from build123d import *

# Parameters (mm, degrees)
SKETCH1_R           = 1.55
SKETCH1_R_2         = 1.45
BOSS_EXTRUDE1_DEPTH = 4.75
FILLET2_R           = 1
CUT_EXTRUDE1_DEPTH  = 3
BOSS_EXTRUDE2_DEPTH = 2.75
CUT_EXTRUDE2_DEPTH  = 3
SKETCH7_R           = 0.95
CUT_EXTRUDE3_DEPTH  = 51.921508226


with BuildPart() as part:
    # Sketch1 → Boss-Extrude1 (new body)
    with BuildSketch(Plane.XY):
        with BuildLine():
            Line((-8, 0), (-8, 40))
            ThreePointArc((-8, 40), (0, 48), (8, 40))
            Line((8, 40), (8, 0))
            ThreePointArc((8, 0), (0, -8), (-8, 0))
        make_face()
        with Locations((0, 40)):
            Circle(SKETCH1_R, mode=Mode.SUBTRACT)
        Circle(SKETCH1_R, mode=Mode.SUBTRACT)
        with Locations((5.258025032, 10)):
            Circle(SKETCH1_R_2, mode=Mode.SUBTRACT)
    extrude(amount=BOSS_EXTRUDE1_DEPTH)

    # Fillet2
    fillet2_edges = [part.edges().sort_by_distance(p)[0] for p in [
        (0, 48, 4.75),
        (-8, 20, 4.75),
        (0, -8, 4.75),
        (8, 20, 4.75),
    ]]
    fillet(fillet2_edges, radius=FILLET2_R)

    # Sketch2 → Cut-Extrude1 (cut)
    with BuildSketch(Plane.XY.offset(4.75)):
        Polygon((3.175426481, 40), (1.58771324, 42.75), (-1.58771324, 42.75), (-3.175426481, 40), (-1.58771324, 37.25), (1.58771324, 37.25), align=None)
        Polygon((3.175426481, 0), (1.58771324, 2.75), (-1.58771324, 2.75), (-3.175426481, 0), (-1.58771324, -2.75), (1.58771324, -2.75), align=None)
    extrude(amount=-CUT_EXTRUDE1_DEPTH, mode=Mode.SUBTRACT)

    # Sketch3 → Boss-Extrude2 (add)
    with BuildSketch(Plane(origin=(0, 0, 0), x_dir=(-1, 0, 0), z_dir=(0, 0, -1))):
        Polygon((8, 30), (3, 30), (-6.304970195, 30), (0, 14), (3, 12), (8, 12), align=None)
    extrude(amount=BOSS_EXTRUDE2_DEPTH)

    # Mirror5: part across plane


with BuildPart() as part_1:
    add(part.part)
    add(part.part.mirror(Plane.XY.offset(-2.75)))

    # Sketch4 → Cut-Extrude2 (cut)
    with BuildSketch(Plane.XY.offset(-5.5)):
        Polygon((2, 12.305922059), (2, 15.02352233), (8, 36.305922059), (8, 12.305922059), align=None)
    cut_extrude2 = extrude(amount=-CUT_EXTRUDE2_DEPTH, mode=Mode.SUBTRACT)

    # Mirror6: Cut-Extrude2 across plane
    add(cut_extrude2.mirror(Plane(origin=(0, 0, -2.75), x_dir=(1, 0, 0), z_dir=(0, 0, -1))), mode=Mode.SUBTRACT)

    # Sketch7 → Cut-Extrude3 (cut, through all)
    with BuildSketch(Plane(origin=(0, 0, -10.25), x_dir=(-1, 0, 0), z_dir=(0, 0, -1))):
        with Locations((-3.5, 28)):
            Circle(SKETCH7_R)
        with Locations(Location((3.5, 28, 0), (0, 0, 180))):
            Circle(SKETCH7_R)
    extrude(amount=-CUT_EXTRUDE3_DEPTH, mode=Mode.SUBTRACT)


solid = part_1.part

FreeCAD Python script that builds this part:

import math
import FreeCAD as App
import Part
import Sketcher
Q = App.Units.Quantity


def edges_at(feature, points):
    """Names of the edges that pass closest to the given points."""
    edges = feature.Shape.Edges
    near = lambda p: min(range(len(edges)), key=lambda i: edges[i].distToShape(Part.Vertex(*p))[0])
    return sorted({f"Edge{near(p) + 1}" for p in points})

doc = App.newDocument("Part")
body = doc.addObject("PartDesign::Body", "Body")

# Sketch on XY plane
sketch1 = body.newObject("Sketcher::SketchObject", "Sketch")
sketch1.AttachmentSupport = (doc.getObject("XY_Plane"), [""])
sketch1.MapMode = "FlatFace"
sketch1.addGeometry([
    Part.LineSegment(App.Vector(-8, 40, 0), App.Vector(-8, 0, 0)),  # 0
    Part.ArcOfCircle(Part.Circle(App.Vector(0, 0, 0), App.Vector(0, 0, 1), 8), math.radians(180), math.radians(360)),  # 1
    Part.LineSegment(App.Vector(8, 0, 0), App.Vector(8, 40, 0)),  # 2
    Part.ArcOfCircle(Part.Circle(App.Vector(0, 40, 0), App.Vector(0, 0, 1), 8), math.radians(0), math.radians(180)),  # 3
    Part.Circle(App.Vector(5.3, 10, 0), App.Vector(0, 0, 1), 1.4),  # 4
    Part.Circle(App.Vector(0, 0, 0), App.Vector(0, 0, 1), 1.6),  # 5
    Part.Circle(App.Vector(0, 40, 0), App.Vector(0, 0, 1), 1.6),  # 6
], False)
sketch1.addConstraint([
    Sketcher.Constraint("Tangent", 0, 2, 1, 1),
    Sketcher.Constraint("Tangent", 1, 2, 2, 1),
    Sketcher.Constraint("Tangent", 2, 2, 3, 1),
    Sketcher.Constraint("Tangent", 3, 2, 0, 1),
    Sketcher.Constraint("Vertical", 0),
    Sketcher.Constraint("Vertical", 2),
    Sketcher.Constraint("Coincident", 1, 3, -1, 1),
    Sketcher.Constraint("Coincident", 5, 3, -1, 1),
    Sketcher.Constraint("Coincident", 6, 3, 3, 3),
    Sketcher.Constraint("Equal", 5, 6),
    Sketcher.Constraint("Radius", 1, Q("8 mm")),
    Sketcher.Constraint("Diameter", 4, Q("2.9 mm")),
    Sketcher.Constraint("Diameter", 5, Q("3.1 mm")),
    Sketcher.Constraint("DistanceY", 0, 2, 0, 1, Q("40 mm")),
    Sketcher.Constraint("DistanceY", -1, 1, 4, 3, Q("10 mm")),
    Sketcher.Constraint("DistanceX", -1, 1, 4, 3, Q("5.258025 mm")),
])
pad1 = body.newObject("PartDesign::Pad", "Pad")
pad1.Profile = sketch1
pad1.Length = 4.75
doc.recompute()

fillet = body.newObject("PartDesign::Fillet", "Fillet")
fillet.Base = (pad1, edges_at(pad1, [
    (0, 48, 4.75),
    (-8, 20, 4.75),
    (0, -8, 4.75),
    (8, 20, 4.75),
]))
fillet.Radius = 1

# Sketch on XY plane
sketch2 = body.newObject("Sketcher::SketchObject", "Sketch001")
sketch2.AttachmentSupport = (doc.getObject("XY_Plane"), [""])
sketch2.MapMode = "FlatFace"
sketch2.AttachmentOffset = App.Placement(App.Vector(0, 0, 4.75), App.Rotation())
sketch2.addGeometry([
    Part.LineSegment(App.Vector(3.2, 40, 0), App.Vector(1.6, 42.8, 0)),  # 0
    Part.LineSegment(App.Vector(1.6, 42.8, 0), App.Vector(-1.6, 42.8, 0)),  # 1
    Part.LineSegment(App.Vector(-1.6, 42.8, 0), App.Vector(-3.2, 40, 0)),  # 2
    Part.LineSegment(App.Vector(-3.2, 40, 0), App.Vector(-1.6, 37.2, 0)),  # 3
    Part.LineSegment(App.Vector(-1.6, 37.2, 0), App.Vector(1.6, 37.2, 0)),  # 4
    Part.LineSegment(App.Vector(1.6, 37.2, 0), App.Vector(3.2, 40, 0)),  # 5
    Part.LineSegment(App.Vector(3.2, 0, 0), App.Vector(1.6, 2.8, 0)),  # 6
    Part.LineSegment(App.Vector(1.6, 2.8, 0), App.Vector(-1.6, 2.8, 0)),  # 7
    Part.LineSegment(App.Vector(-1.6, 2.8, 0), App.Vector(-3.2, 0, 0)),  # 8
    Part.LineSegment(App.Vector(-3.2, 0, 0), App.Vector(-1.6, -2.8, 0)),  # 9
    Part.LineSegment(App.Vector(-1.6, -2.8, 0), App.Vector(1.6, -2.8, 0)),  # 10
    Part.LineSegment(App.Vector(1.6, -2.8, 0), App.Vector(3.2, 0, 0)),  # 11
], False)
sketch2.addConstraint([
    Sketcher.Constraint("Coincident", 0, 2, 1, 1),
    Sketcher.Constraint("Coincident", 1, 2, 2, 1),
    Sketcher.Constraint("Coincident", 2, 2, 3, 1),
    Sketcher.Constraint("Coincident", 3, 2, 4, 1),
    Sketcher.Constraint("Coincident", 4, 2, 5, 1),
    Sketcher.Constraint("Coincident", 5, 2, 0, 1),
    Sketcher.Constraint("Coincident", 6, 2, 7, 1),
    Sketcher.Constraint("Coincident", 7, 2, 8, 1),
    Sketcher.Constraint("Coincident", 8, 2, 9, 1),
    Sketcher.Constraint("Coincident", 9, 2, 10, 1),
    Sketcher.Constraint("Coincident", 10, 2, 11, 1),
    Sketcher.Constraint("Coincident", 11, 2, 6, 1),
    Sketcher.Constraint("Horizontal", 1),
    Sketcher.Constraint("Horizontal", 4),
    Sketcher.Constraint("Horizontal", 7),
    Sketcher.Constraint("Horizontal", 10),
    Sketcher.Constraint("Symmetric", 6, 2, 9, 2, -1, 1),
    Sketcher.Constraint("Symmetric", 8, 2, 11, 2, -1, 1),
    Sketcher.Constraint("Symmetric", 2, 2, 5, 2, -2),
    Sketcher.Constraint("PointOnObject", 8, 2, -1),
    Sketcher.Constraint("Parallel", 0, 3),
    Sketcher.Constraint("Parallel", 2, 5),
    Sketcher.Constraint("Parallel", 3, 6),
    Sketcher.Constraint("Parallel", 5, 8),
    Sketcher.Constraint("Parallel", 8, 11),
    Sketcher.Constraint("Vertical", 1, 2, 3, 2),
    Sketcher.Constraint("Vertical", 0, 2, 4, 2),
    Sketcher.Constraint("Vertical", 4, 2, 6, 2),
    Sketcher.Constraint("Vertical", 2, 2, 8, 2),
    Sketcher.Constraint("Angle", 0, Q("120 deg")),
    Sketcher.Constraint("DistanceY", -1, 1, 2, 2, Q("40 mm")),
    Sketcher.Constraint("DistanceY", 3, 2, 1, 2, Q("5.5 mm")),
    Sketcher.Constraint("DistanceX", 1, 2, 1, 1, Q("3.175426 mm")),
])
pocket1 = body.newObject("PartDesign::Pocket", "Pocket")
pocket1.Profile = sketch2
pocket1.Length = 3

# Sketch on XY plane
sketch3 = body.newObject("Sketcher::SketchObject", "Sketch002")
sketch3.AttachmentSupport = (doc.getObject("XY_Plane"), [""])
sketch3.MapMode = "FlatFace"
sketch3.addGeometry([
    Part.LineSegment(App.Vector(-8, 30, 0), App.Vector(6.3, 30, 0)),  # 0
    Part.LineSegment(App.Vector(6.3, 30, 0), App.Vector(0, 14, 0)),  # 1
    Part.LineSegment(App.Vector(0, 14, 0), App.Vector(-3, 12, 0)),  # 2
    Part.LineSegment(App.Vector(-3, 12, 0), App.Vector(-8, 12, 0)),  # 3
    Part.LineSegment(App.Vector(-8, 12, 0), App.Vector(-8, 30, 0)),  # 4
], False)
sketch3.addConstraint([
    Sketcher.Constraint("Coincident", 0, 2, 1, 1),
    Sketcher.Constraint("Coincident", 1, 2, 2, 1),
    Sketcher.Constraint("Coincident", 2, 2, 3, 1),
    Sketcher.Constraint("Coincident", 3, 2, 4, 1),
    Sketcher.Constraint("Coincident", 4, 2, 0, 1),
    Sketcher.Constraint("Horizontal", 0),
    Sketcher.Constraint("Horizontal", 3),
    Sketcher.Constraint("Vertical", 4),
    Sketcher.Constraint("PointOnObject", 1, 2, -2),
    Sketcher.Constraint("DistanceX", 3, 2, 3, 1, Q("5 mm")),
    Sketcher.Constraint("DistanceY", 4, 1, 4, 2, Q("18 mm")),
    Sketcher.Constraint("DistanceY", -1, 1, 0, 2, Q("30 mm")),
    Sketcher.Constraint("DistanceY", -1, 1, 1, 2, Q("14 mm")),
    Sketcher.Constraint("DistanceX", 2, 2, -1, 1, Q("3 mm")),
    Sketcher.Constraint("DistanceX", 0, 1, 0, 2, Q("14.30497 mm")),
])
pad2 = body.newObject("PartDesign::Pad", "Pad001")
pad2.Profile = sketch3
pad2.Length = 2.75
pad2.Reversed = True
body2 = doc.addObject("PartDesign::Body", "Body001")
doc.recompute()

body2.BaseFeature = body
doc.recompute()

mirroring = doc.addObject("Part::Mirroring", "Mirroring")
mirroring.Source = body
mirroring.Base = App.Vector(0, 0, -2.75)
mirroring.Normal = App.Vector(0, 0, 1)
body3 = doc.addObject("PartDesign::Body", "Body002")
body3.BaseFeature = mirroring
boolean = body2.newObject("PartDesign::Boolean", "Boolean")
boolean.Type = "Fuse"
boolean.addObjects([body3])
doc.recompute()

# Sketch on XY plane
sketch4 = body2.newObject("Sketcher::SketchObject", "Sketch003")
sketch4.AttachmentSupport = (doc.getObject("XY_Plane001"), [""])
sketch4.MapMode = "FlatFace"
sketch4.AttachmentOffset = App.Placement(App.Vector(0, 0, -5.5), App.Rotation())
sketch4.addGeometry([
    Part.LineSegment(App.Vector(2, 15, 0), App.Vector(2, 12.3, 0)),
    Part.LineSegment(App.Vector(2, 12.3, 0), App.Vector(8, 12.3, 0)),
    Part.LineSegment(App.Vector(8, 12.3, 0), App.Vector(8, 36.3, 0)),
    Part.LineSegment(App.Vector(8, 36.3, 0), App.Vector(2, 15, 0)),
], False)
sketch4.addConstraint([
    Sketcher.Constraint("Coincident", 0, 2, 1, 1),
    Sketcher.Constraint("Coincident", 1, 2, 2, 1),
    Sketcher.Constraint("Coincident", 2, 2, 3, 1),
    Sketcher.Constraint("Coincident", 3, 2, 0, 1),
    Sketcher.Constraint("Vertical", 0),
    Sketcher.Constraint("Horizontal", 1),
    Sketcher.Constraint("Vertical", 2),
    Sketcher.Constraint("DistanceX", 1, 1, 1, 2, Q("6 mm")),
    Sketcher.Constraint("DistanceY", 2, 1, 2, 2, Q("24 mm")),
    Sketcher.Constraint("DistanceX", -1, 1, 0, 2, Q("2 mm")),
    Sketcher.Constraint("Distance", 3, Q("22.112 mm")),
    Sketcher.Constraint("DistanceY", -1, 1, 0, 2, Q("12.305922 mm")),
])
pocket2 = body2.newObject("PartDesign::Pocket", "Pocket001")
pocket2.Profile = sketch4
pocket2.Length = 3
doc.recompute()

datumplane = body2.newObject("PartDesign::Plane", "DatumPlane")
datumplane.AttachmentSupport = (doc.getObject("XY_Plane001"), [""])
datumplane.MapMode = "FlatFace"
datumplane.AttachmentOffset = App.Placement(App.Vector(0, 0, -2.75), App.Rotation())
mirrored = body2.newObject("PartDesign::Mirrored", "Mirrored")
mirrored.Originals = [pocket2]
mirrored.MirrorPlane = (datumplane, [""])
body2.Tip = mirrored

# Sketch on XY plane
sketch5 = body2.newObject("Sketcher::SketchObject", "Sketch004")
sketch5.AttachmentSupport = (doc.getObject("XY_Plane001"), [""])
sketch5.MapMode = "FlatFace"
sketch5.AttachmentOffset = App.Placement(App.Vector(0, 0, -10.25), App.Rotation())
sketch5.addGeometry([
    Part.Circle(App.Vector(3.5, 28, 0), App.Vector(0, 0, 1), 0.9),
    Part.Circle(App.Vector(-3.5, 28, 0), App.Vector(0, 0, 1), 0.9),
], False)
sketch5.addConstraint([
    Sketcher.Constraint("Equal", 0, 1),
    Sketcher.Constraint("Symmetric", 0, 3, 1, 3, -2),
    Sketcher.Constraint("Diameter", 0, Q("1.9 mm")),
    Sketcher.Constraint("DistanceY", -1, 1, 0, 3, Q("28 mm")),
    Sketcher.Constraint("DistanceX", 1, 3, 0, 3, Q("7 mm")),
])
pocket3 = body2.newObject("PartDesign::Pocket", "Pocket002")
pocket3.Profile = sketch5
pocket3.Type = "ThroughAll"
pocket3.Reversed = True
mirroring.Visibility = False

doc.recompute()
